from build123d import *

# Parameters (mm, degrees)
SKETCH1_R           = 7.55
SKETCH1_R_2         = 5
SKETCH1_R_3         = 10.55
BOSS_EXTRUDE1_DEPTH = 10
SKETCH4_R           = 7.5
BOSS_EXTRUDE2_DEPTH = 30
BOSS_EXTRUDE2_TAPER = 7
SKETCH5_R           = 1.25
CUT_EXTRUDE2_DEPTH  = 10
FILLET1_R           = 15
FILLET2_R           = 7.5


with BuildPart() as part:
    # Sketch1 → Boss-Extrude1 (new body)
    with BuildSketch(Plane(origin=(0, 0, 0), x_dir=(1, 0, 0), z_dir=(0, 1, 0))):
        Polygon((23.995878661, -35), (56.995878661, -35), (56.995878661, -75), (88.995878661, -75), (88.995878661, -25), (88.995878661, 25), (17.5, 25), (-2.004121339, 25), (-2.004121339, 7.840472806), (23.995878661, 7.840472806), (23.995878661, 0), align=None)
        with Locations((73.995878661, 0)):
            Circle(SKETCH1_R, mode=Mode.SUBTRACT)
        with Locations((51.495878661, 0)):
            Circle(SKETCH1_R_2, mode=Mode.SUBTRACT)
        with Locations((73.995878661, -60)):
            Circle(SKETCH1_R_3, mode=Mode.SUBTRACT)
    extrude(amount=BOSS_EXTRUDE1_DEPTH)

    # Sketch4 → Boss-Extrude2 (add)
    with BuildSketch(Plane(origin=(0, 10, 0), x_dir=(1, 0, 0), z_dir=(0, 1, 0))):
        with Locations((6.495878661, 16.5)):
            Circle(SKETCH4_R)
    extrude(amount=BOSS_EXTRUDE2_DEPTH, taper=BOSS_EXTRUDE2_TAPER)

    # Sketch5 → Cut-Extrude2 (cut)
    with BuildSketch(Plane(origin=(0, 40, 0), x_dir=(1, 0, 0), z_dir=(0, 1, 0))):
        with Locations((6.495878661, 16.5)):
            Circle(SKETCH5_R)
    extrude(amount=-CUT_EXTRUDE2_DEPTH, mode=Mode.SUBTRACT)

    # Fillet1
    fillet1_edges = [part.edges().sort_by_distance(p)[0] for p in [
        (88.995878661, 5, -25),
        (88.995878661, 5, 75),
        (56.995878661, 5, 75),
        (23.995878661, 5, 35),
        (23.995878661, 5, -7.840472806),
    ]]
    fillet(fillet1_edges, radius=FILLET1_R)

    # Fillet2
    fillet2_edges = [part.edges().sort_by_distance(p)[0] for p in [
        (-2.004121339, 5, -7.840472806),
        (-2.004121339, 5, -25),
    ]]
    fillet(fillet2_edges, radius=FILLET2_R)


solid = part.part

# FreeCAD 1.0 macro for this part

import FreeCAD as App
import Part
import Sketcher

V = App.Vector


def edges_at(feature, points):
    """Names of the edges that pass closest to the given points."""
    edges = feature.Shape.Edges
    near = lambda p: min(range(len(edges)), key=lambda i: edges[i].distToShape(Part.Vertex(*p))[0])
    return sorted({f"Edge{near(p) + 1}" for p in points})


def add_polygon(sketch, points):
    """Adds a closed chain of lines whose ends are joined by coincident constraints."""
    first, n = sketch.GeometryCount, len(points)
    for a, b in zip(points, points[1:] + points[:1]):
        sketch.addGeometry(Part.LineSegment(App.Vector(*a, 0), App.Vector(*b, 0)), False)
    for i in range(n):
        sketch.addConstraint(Sketcher.Constraint("Coincident", first + i, 2, first + (i + 1) % n, 1))

doc = App.newDocument("Part")
body = doc.addObject("PartDesign::Body", "Body")

sketch1 = doc.addObject("Sketcher::SketchObject", "Sketch")
body.addObject(sketch1)
sketch1.AttachmentSupport = (doc.XZ_Plane, [""])
sketch1.MapMode = "FlatFace"
add_polygon(sketch1, [(24, 35), (57, 35), (57, 75), (89, 75), (89, -25), (-2, -25), (-2, -8), (24, -8)])
sketch1.addGeometry(Part.Circle(V(74, 60, 0), V(0, 0, 1), 11), False)
sketch1.addGeometry(Part.Circle(V(51, 0, 0), V(0, 0, 1), 5), False)
sketch1.addGeometry(Part.Circle(V(74, 0, 0), V(0, 0, 1), 8), False)
sketch1.addConstraint([
    Sketcher.Constraint("Horizontal", 0),
    Sketcher.Constraint("Vertical", 1),
    Sketcher.Constraint("Horizontal", 2),
    Sketcher.Constraint("Vertical", 3),
    Sketcher.Constraint("Horizontal", 4),
    Sketcher.Constraint("Vertical", 5),
    Sketcher.Constraint("Horizontal", 6),
    Sketcher.Constraint("Vertical", 7),
    Sketcher.Constraint("PointOnObject", 9, 3, -1),
    Sketcher.Constraint("PointOnObject", 10, 3, -1),
    Sketcher.Constraint("Vertical", 8, 3, 10, 3),
    Sketcher.Constraint("Diameter", 9, 10.0),
    Sketcher.Constraint("Diameter", 8, 21.1),
    Sketcher.Constraint("Diameter", 10, 15.1),
    Sketcher.Constraint("DistanceX", 0, 1, 0, 2, 33.0),
    Sketcher.Constraint("DistanceX", 2, 1, 2, 2, 32.0),
    Sketcher.Constraint("DistanceX", 4, 2, 4, 1, 91.0),
    Sketcher.Constraint("DistanceY", 1, 1, 1, 2, 40.0),
    Sketcher.Constraint("DistanceY", 3, 2, 3, 1, 100.0),
    Sketcher.Constraint("DistanceY", -1, 1, 8, 3, 60.0),
    Sketcher.Constraint("DistanceY", -1, 1, 0, 2, 35.0),
    Sketcher.Constraint("DistanceX", 0, 2, 8, 3, 17.0),
    Sketcher.Constraint("DistanceX", 9, 3, 8, 3, 22.5),
    Sketcher.Constraint("DistanceY", 5, 1, 5, 2, 17.159527),
    Sketcher.Constraint("DistanceX", -1, 1, 8, 3, 73.995879),
])
pad1 = doc.addObject("PartDesign::Pad", "Pad")
body.addObject(pad1)
pad1.Profile = sketch1
pad1.Length = 10
pad1.Reversed = True

sketch2 = doc.addObject("Sketcher::SketchObject", "Sketch001")
body.addObject(sketch2)
sketch2.AttachmentSupport = (doc.XZ_Plane, [""])
sketch2.MapMode = "FlatFace"
sketch2.AttachmentOffset = App.Placement(V(0, 0, -10), App.Rotation())
sketch2.addGeometry(Part.Circle(V(6, -16, 0), V(0, 0, 1), 8), False)
sketch2.addConstraint([
    Sketcher.Constraint("Diameter", 0, 15.0),
    Sketcher.Constraint("DistanceY", 0, 3, -1, 1, 16.5),
    Sketcher.Constraint("DistanceX", -1, 1, 0, 3, 6.495879),
])
pad2 = doc.addObject("PartDesign::Pad", "Pad001")
body.addObject(pad2)
pad2.Profile = sketch2
pad2.Length = 30
pad2.Reversed = True
pad2.TaperAngle = -7

sketch3 = doc.addObject("Sketcher::SketchObject", "Sketch002")
body.addObject(sketch3)
sketch3.AttachmentSupport = (doc.XZ_Plane, [""])
sketch3.MapMode = "FlatFace"
sketch3.AttachmentOffset = App.Placement(V(0, 0, -40), App.Rotation())
sketch3.addGeometry(Part.Circle(V(6.5, -16.5, 0), V(0, 0, 1), 1.2), False)
sketch3.addConstraint([
    Sketcher.Constraint("Diameter", 0, 2.5),
    Sketcher.Constraint("DistanceY", 0, 3, -1, 1, 16.5),
    Sketcher.Constraint("DistanceX", -1, 1, 0, 3, 6.495879),
])
pocket1 = doc.addObject("PartDesign::Pocket", "Pocket")
body.addObject(pocket1)
pocket1.Profile = sketch3
pocket1.Length = 10
pocket1.Reversed = True
doc.recompute()

fillet = doc.addObject("PartDesign::Fillet", "Fillet")
body.addObject(fillet)
fillet.Base = (pocket1, edges_at(pocket1, [
    (88.996, 5, -25),
    (88.996, 5, 75),
    (56.996, 5, 75),
    (23.996, 5, 35),
    (23.996, 5, -7.84),
]))
fillet.Radius = 15
doc.recompute()

fillet2 = doc.addObject("PartDesign::Fillet", "Fillet001")
body.addObject(fillet2)
fillet2.Base = (fillet, edges_at(fillet, [(-2.004, 5, -7.84), (-2.004, 5, -25)]))
fillet2.Radius = 7.5

doc.recompute()
